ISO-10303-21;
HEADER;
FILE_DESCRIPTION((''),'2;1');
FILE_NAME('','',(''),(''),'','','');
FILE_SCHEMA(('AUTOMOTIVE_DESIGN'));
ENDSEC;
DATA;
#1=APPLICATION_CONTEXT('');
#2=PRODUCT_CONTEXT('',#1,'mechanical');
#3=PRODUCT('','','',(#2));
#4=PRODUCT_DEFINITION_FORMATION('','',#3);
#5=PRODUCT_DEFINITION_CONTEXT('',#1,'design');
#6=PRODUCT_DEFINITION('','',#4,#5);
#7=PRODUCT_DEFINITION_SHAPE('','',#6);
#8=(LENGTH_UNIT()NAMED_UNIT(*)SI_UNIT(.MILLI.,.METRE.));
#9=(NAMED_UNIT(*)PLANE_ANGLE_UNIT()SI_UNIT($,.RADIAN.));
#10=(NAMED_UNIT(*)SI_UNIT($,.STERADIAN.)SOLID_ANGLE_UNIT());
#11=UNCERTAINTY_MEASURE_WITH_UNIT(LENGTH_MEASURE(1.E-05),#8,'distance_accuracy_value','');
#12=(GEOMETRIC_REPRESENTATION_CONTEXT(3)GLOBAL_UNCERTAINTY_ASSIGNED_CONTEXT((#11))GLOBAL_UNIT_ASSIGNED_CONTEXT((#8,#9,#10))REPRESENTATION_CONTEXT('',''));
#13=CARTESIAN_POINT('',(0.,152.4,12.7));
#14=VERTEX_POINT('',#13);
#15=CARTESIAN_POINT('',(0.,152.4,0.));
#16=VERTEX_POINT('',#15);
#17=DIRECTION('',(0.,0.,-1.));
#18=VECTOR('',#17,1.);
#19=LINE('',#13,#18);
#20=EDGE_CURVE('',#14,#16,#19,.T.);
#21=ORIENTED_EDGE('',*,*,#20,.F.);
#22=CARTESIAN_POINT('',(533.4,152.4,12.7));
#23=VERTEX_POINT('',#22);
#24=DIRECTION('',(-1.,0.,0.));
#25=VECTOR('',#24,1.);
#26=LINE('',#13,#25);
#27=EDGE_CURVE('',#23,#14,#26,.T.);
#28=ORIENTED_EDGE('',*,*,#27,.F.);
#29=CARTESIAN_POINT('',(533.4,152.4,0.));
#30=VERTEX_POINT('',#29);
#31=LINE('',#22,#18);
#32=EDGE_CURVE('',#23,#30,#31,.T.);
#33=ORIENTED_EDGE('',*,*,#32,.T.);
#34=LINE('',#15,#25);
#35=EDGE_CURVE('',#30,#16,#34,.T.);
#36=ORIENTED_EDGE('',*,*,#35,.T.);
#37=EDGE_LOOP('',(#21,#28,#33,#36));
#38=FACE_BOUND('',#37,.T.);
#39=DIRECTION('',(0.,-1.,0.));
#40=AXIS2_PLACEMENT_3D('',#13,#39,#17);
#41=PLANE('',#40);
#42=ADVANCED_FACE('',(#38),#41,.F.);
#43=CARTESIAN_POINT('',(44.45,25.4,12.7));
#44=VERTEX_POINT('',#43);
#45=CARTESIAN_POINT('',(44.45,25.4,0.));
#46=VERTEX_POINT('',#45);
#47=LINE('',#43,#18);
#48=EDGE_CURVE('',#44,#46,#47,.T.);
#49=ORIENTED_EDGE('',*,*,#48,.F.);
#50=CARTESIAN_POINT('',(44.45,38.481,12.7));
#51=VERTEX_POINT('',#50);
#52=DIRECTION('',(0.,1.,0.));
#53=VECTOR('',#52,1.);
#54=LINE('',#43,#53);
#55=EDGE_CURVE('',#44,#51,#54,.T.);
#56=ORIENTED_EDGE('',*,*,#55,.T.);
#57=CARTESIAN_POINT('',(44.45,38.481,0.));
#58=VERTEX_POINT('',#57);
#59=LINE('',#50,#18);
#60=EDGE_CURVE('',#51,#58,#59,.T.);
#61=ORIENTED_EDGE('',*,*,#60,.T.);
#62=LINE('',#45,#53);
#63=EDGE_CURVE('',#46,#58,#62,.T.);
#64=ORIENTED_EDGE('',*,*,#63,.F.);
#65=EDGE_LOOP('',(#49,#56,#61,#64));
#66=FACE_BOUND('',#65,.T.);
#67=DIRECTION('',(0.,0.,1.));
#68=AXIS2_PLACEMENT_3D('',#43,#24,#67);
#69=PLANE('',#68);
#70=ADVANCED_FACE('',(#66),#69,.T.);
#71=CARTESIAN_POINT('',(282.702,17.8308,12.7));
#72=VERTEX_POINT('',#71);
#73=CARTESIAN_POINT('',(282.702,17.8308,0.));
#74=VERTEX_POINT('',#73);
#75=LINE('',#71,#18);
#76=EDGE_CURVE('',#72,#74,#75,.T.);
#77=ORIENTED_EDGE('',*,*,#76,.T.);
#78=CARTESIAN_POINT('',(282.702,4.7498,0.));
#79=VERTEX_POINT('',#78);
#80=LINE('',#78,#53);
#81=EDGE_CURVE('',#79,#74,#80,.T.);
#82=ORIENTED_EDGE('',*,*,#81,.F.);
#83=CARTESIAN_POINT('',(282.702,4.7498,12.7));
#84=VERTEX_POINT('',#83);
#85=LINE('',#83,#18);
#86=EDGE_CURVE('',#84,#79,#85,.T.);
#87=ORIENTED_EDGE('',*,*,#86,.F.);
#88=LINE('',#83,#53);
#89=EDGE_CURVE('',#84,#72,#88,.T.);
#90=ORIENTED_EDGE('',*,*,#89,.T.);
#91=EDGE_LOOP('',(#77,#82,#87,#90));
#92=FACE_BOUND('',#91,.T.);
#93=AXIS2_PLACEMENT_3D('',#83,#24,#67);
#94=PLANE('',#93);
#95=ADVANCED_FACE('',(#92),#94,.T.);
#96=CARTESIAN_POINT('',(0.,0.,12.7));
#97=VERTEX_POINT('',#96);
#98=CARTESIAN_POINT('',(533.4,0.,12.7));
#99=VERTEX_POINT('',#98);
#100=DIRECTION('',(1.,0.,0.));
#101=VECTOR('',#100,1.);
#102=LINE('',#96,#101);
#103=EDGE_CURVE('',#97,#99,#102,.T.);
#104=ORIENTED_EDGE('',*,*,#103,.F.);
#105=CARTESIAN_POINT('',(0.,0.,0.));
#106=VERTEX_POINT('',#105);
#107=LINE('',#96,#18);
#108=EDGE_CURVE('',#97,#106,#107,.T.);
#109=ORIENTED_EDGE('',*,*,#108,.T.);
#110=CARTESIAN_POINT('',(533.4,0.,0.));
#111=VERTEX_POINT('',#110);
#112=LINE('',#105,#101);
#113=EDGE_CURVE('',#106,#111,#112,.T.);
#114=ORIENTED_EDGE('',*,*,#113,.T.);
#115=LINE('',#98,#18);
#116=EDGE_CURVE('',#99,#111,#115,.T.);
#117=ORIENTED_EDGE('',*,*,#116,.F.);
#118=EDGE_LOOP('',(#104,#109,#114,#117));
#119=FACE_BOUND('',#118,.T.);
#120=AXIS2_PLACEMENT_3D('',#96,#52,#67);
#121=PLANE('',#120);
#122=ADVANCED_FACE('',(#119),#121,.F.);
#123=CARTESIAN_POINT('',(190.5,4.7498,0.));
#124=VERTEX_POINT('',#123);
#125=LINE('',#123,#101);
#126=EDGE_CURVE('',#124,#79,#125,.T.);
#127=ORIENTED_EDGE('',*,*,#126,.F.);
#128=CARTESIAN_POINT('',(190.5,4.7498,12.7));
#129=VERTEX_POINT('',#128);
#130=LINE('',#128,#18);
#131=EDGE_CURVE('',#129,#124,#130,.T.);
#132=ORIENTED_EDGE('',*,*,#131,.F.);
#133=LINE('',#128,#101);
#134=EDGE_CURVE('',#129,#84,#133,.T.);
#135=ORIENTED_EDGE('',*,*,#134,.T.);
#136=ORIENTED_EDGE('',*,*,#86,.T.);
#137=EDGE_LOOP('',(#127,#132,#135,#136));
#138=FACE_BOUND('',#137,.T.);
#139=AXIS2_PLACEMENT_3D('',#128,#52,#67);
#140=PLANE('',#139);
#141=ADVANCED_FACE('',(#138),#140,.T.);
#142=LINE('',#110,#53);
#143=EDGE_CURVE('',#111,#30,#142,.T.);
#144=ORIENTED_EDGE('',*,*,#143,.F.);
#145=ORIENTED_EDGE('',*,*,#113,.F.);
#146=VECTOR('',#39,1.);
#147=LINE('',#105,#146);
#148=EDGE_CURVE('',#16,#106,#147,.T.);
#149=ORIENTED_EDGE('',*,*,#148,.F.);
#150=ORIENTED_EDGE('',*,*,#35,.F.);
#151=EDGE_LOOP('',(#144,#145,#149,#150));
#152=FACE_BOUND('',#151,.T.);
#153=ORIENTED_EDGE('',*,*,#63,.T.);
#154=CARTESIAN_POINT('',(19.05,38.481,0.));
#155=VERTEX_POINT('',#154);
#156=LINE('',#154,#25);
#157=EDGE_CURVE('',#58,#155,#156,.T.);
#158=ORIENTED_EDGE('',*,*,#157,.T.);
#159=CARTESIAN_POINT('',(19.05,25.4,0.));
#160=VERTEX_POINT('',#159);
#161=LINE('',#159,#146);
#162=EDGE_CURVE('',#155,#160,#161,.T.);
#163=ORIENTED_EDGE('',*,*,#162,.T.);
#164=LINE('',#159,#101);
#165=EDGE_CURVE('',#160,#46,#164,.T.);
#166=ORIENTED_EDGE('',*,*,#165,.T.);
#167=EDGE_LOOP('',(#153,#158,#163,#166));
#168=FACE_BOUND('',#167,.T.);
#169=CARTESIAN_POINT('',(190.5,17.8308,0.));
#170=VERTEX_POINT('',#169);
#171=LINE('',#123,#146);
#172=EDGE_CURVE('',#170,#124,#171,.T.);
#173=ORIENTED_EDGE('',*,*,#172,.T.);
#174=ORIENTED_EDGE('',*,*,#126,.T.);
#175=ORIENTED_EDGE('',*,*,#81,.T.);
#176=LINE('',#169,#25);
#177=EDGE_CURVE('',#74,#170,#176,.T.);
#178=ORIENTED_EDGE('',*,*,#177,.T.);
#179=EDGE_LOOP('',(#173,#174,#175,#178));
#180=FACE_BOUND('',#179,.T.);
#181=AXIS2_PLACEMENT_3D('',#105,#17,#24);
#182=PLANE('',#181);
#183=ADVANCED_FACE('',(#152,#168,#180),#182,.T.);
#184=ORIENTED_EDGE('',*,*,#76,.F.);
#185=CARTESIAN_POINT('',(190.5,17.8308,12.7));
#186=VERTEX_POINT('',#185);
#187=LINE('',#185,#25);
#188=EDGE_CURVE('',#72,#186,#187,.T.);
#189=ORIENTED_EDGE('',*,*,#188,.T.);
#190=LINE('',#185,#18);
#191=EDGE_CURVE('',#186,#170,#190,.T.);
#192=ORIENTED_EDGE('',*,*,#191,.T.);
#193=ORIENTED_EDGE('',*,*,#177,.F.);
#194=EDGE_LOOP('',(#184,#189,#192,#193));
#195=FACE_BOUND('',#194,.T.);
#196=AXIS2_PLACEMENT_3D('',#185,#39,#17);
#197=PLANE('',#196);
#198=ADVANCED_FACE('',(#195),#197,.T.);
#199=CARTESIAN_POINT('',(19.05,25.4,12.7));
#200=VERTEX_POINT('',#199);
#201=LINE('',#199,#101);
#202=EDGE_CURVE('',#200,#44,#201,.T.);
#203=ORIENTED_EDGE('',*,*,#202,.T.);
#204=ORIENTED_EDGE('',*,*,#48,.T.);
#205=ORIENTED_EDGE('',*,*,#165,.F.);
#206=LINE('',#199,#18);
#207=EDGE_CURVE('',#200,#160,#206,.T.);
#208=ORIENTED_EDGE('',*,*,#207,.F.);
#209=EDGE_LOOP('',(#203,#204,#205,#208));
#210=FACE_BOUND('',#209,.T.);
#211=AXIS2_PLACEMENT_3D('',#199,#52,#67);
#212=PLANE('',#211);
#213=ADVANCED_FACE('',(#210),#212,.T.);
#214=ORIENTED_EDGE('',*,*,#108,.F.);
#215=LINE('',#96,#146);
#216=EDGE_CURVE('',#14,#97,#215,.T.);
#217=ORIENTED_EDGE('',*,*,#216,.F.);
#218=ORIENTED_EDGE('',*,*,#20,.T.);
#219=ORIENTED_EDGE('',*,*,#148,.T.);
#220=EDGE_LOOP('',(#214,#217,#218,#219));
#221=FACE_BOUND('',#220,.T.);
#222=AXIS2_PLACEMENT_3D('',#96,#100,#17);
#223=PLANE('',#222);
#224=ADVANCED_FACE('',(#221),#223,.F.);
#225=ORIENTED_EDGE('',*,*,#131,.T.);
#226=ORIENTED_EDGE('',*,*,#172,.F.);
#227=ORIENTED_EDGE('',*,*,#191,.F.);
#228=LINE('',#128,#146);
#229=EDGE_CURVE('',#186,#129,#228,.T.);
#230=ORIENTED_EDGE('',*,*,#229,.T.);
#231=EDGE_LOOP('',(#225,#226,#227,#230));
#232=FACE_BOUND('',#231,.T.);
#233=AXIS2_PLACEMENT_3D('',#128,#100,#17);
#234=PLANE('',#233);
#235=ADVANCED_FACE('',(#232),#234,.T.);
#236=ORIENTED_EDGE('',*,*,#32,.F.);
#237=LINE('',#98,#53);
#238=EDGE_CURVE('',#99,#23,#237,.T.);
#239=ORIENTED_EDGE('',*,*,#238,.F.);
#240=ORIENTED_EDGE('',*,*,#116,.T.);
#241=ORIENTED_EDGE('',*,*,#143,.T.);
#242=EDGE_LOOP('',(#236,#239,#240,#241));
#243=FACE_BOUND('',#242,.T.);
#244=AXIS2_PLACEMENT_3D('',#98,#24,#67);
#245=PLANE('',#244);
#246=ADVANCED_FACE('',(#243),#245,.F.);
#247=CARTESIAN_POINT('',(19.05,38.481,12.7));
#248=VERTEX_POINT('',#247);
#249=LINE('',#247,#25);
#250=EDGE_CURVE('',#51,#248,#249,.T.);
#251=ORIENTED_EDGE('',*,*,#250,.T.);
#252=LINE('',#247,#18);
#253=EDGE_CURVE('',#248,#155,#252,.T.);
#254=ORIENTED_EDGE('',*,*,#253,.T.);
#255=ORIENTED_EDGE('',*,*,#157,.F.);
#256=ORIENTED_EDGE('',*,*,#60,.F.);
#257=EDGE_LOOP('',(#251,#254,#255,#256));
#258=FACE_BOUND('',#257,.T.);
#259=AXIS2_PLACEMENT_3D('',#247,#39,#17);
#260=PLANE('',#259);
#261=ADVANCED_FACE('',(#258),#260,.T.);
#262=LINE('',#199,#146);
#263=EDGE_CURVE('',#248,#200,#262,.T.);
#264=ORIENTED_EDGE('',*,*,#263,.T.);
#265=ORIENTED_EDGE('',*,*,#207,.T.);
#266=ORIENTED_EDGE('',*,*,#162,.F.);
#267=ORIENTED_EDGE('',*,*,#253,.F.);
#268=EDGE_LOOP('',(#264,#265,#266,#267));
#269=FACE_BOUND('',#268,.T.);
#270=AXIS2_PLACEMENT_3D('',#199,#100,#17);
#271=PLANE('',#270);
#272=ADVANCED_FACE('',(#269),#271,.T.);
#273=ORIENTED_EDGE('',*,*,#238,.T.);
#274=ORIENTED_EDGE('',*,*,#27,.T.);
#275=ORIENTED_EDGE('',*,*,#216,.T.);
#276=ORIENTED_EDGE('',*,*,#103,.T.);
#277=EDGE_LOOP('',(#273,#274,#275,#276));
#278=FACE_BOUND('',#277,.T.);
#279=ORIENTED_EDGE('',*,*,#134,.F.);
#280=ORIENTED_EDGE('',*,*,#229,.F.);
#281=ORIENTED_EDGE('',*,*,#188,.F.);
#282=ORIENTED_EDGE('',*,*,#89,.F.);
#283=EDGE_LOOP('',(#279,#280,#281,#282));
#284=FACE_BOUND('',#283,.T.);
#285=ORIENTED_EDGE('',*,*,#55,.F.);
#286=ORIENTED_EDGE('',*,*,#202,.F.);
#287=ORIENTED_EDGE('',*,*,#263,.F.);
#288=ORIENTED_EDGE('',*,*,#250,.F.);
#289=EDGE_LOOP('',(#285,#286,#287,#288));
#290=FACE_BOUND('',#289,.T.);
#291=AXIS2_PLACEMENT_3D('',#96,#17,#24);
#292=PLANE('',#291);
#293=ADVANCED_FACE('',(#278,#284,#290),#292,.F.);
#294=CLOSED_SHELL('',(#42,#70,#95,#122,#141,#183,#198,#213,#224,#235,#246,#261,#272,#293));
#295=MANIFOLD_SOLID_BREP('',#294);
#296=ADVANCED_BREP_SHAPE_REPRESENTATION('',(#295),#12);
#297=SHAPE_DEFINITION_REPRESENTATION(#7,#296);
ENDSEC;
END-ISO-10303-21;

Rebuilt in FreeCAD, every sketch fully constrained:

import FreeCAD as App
import Part
import Sketcher
from FreeCAD import Vector
Q = App.Units.Quantity


def add_polygon(sketch, points):
    """Adds a closed chain of lines whose ends are joined by coincident constraints."""
    first, n = sketch.GeometryCount, len(points)
    for a, b in zip(points, points[1:] + points[:1]):
        sketch.addGeometry(Part.LineSegment(App.Vector(*a, 0), App.Vector(*b, 0)), False)
    for i in range(n):
        sketch.addConstraint(Sketcher.Constraint("Coincident", first + i, 2, first + (i + 1) % n, 1))

doc = App.newDocument("Part")
params = doc.addObject("Spreadsheet::Sheet", "Params")
for row, (alias, value) in enumerate([
    ("sketch1_width", "21 in"),
    ("sketch1_height", "6 in"),
    ("pad1_length", "0.5 in"),
    ("sketch2_width", "1 in"),
    ("sketch2_height", "0.515 in"),
    ("sketch3_width", "3.63 in"),
    ("sketch3_height", "0.515 in"),
], start=1):
    params.set(f"A{row}", alias)
    params.set(f"B{row}", "=" + value)
    params.setAlias(f"B{row}", alias)

body = doc.addObject("PartDesign::Body", "Body")

# Sketch on XY plane
sketch1 = body.newObject("Sketcher::SketchObject", "Sketch")
sketch1.AttachmentSupport = (doc.getObject("XY_Plane"), [""])
sketch1.MapMode = "FlatFace"
add_polygon(sketch1, [(0, 152), (0, 0), (533, 0), (533, 152)])  # lines 0-3
sketch1.addConstraint([
    Sketcher.Constraint("Vertical", 0),
    Sketcher.Constraint("Horizontal", 1),
    Sketcher.Constraint("Vertical", 2),
    Sketcher.Constraint("Horizontal", 3),
    Sketcher.Constraint("Coincident", 0, 2, -1, 1),
    Sketcher.Constraint("DistanceX", 1, 1, 1, 2, Q("21 in")),
    Sketcher.Constraint("DistanceY", 0, 2, 0, 1, Q("6 in")),
])
sketch1.setExpression("Constraints[9]", "Params.sketch1_width")
sketch1.setExpression("Constraints[10]", "Params.sketch1_height")
pad1 = body.newObject("PartDesign::Pad", "Pad")
pad1.Profile = sketch1
pad1.setExpression("Length", "Params.pad1_length")

# Sketch on XY plane
sketch2 = body.newObject("Sketcher::SketchObject", "Sketch001")
sketch2.AttachmentSupport = (doc.getObject("XY_Plane"), [""])
sketch2.MapMode = "FlatFace"
add_polygon(sketch2, [(19, 38), (19, 25), (44, 25), (44, 38)])  # lines 0-3
sketch2.addConstraint([
    Sketcher.Constraint("Vertical", 0),
    Sketcher.Constraint("Horizontal", 1),
    Sketcher.Constraint("Vertical", 2),
    Sketcher.Constraint("Horizontal", 3),
    Sketcher.Constraint("DistanceX", 1, 1, 1, 2, Q("1 in")),
    Sketcher.Constraint("DistanceY", -1, 1, 0, 2, Q("1 in")),
    Sketcher.Constraint("DistanceY", 0, 2, 0, 1, Q("0.515 in")),
    Sketcher.Constraint("DistanceX", -1, 1, 0, 2, Q("0.75 in")),
])
sketch2.setExpression("Constraints[8]", "Params.sketch2_width")
sketch2.setExpression("Constraints[10]", "Params.sketch2_height")
pocket1 = body.newObject("PartDesign::Pocket", "Pocket")
pocket1.Profile = sketch2
pocket1.Type = "ThroughAll"
pocket1.Reversed = True

# Sketch on XY plane
sketch3 = body.newObject("Sketcher::SketchObject", "Sketch002")
sketch3.AttachmentSupport = (doc.getObject("XY_Plane"), [""])
sketch3.MapMode = "FlatFace"
add_polygon(sketch3, [(190, 18), (190, 5), (283, 5), (283, 18)])  # lines 0-3
sketch3.addConstraint([
    Sketcher.Constraint("Vertical", 0),
    Sketcher.Constraint("Horizontal", 1),
    Sketcher.Constraint("Vertical", 2),
    Sketcher.Constraint("Horizontal", 3),
    Sketcher.Constraint("DistanceX", 1, 1, 1, 2, Q("3.63 in")),
    Sketcher.Constraint("DistanceX", -1, 1, 0, 2, Q("7.5 in")),
    Sketcher.Constraint("DistanceY", 0, 2, 0, 1, Q("0.515 in")),
    Sketcher.Constraint("DistanceY", -1, 1, 0, 2, Q("0.187 in")),
])
sketch3.setExpression("Constraints[8]", "Params.sketch3_width")
sketch3.setExpression("Constraints[10]", "Params.sketch3_height")
pocket2 = body.newObject("PartDesign::Pocket", "Pocket001")
pocket2.Profile = sketch3
pocket2.Type = "ThroughAll"
pocket2.Reversed = True

doc.recompute()
